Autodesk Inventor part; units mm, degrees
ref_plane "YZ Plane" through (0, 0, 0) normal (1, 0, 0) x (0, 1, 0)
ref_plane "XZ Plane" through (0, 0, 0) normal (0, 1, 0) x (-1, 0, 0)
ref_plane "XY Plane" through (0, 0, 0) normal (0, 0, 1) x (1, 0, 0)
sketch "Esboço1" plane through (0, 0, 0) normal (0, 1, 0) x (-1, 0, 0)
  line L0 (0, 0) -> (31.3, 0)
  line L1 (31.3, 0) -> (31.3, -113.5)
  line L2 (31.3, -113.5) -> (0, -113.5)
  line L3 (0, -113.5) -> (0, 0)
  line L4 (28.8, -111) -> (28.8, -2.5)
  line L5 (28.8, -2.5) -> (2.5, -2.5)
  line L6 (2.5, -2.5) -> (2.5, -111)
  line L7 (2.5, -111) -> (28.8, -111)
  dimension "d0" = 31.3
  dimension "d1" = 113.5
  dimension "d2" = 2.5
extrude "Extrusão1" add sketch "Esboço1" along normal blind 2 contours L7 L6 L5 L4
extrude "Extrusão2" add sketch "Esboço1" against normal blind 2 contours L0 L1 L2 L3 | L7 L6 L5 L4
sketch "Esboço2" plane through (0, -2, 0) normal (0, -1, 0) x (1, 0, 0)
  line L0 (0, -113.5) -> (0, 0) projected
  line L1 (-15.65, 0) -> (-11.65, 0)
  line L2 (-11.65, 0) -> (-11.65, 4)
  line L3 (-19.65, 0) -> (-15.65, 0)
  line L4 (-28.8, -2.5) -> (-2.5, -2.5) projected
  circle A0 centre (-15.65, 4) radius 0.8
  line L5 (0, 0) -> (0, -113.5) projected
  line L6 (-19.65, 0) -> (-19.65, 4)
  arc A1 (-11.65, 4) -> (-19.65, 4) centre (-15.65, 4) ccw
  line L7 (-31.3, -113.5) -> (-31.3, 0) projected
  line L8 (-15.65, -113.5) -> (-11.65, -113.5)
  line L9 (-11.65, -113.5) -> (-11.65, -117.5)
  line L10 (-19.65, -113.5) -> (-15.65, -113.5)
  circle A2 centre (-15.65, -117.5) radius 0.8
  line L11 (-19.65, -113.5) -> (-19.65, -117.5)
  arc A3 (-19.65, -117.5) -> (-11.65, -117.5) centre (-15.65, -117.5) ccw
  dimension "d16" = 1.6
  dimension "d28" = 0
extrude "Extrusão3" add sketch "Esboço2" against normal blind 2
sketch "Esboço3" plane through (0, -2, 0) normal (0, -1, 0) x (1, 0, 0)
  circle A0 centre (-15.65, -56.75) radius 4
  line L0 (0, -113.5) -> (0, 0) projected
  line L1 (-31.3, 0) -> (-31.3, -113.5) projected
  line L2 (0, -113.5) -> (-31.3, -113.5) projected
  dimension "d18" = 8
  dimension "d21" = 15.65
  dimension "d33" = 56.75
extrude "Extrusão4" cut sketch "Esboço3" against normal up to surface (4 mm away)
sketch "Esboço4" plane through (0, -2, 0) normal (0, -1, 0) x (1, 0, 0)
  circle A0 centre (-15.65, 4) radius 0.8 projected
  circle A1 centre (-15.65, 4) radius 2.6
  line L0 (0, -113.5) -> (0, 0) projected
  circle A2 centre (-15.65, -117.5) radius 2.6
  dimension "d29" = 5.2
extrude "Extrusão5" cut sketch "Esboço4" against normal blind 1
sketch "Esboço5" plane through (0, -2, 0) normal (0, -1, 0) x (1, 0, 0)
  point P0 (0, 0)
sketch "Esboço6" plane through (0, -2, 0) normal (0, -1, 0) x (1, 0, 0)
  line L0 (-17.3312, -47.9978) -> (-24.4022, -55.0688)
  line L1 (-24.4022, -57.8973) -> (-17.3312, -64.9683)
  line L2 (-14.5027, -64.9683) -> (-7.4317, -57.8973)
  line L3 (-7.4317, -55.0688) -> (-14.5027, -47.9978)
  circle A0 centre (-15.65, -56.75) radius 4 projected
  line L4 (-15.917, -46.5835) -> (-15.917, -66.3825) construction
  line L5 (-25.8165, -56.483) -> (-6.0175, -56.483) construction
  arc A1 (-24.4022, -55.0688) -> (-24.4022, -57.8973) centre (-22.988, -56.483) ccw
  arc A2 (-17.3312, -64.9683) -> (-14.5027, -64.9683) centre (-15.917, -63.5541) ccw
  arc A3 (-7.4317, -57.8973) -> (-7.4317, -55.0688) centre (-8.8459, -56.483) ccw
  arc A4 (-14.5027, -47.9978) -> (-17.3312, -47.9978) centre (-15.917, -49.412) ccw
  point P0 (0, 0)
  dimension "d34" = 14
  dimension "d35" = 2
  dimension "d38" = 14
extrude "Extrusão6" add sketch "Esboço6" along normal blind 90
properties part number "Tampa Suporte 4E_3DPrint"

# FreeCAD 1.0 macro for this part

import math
import FreeCAD as App
import Part
import Sketcher
from FreeCAD import Vector
Q = App.Units.Quantity

doc = App.newDocument("Part")
params = doc.addObject("Spreadsheet::Sheet", "Params")
for row, (alias, value) in enumerate([
    ("sketch1_width", "26.3 mm"),
    ("sketch1_height", "108.5 mm"),
    ("pad1_length", "2 mm"),
    ("sketch2_width", "31.3 mm"),
    ("sketch2_height", "113.5 mm"),
    ("pad2_length", "2 mm"),
    ("sketch3_diameter", "1.6 mm"),
    ("sketch3_radius", "4 mm"),
    ("sketch3_height", "4 mm"),
    ("pad3_length", "2 mm"),
    ("sketch4_diameter", "8 mm"),
    ("pocket1_length", "4 mm"),
    ("sketch5_diameter", "5.2 mm"),
    ("sketch5_diameter2", "1.6 mm"),
    ("pocket2_length", "1 mm"),
    ("sketch6_radius", "2 mm"),
    ("sketch6_diameter", "8 mm"),
    ("sketch6_length", "10 mm"),
    ("pad4_length", "90 mm"),
], start=1):
    params.set(f"A{row}", alias)
    params.set(f"B{row}", "=" + value)
    params.setAlias(f"B{row}", alias)

body = doc.addObject("PartDesign::Body", "Body")

# Sketch on XZ plane
sketch1 = body.newObject("Sketcher::SketchObject", "Sketch")
sketch1.AttachmentSupport = (doc.getObject("XZ_Plane"), [""])
sketch1.MapMode = "FlatFace"
sketch1.addGeometry(Part.LineSegment(Vector(-2, -111, 0), Vector(-29, -111, 0)), False)
sketch1.addGeometry(Part.LineSegment(Vector(-29, -111, 0), Vector(-29, -2, 0)), False)
sketch1.addGeometry(Part.LineSegment(Vector(-29, -2, 0), Vector(-2, -2, 0)), False)
sketch1.addGeometry(Part.LineSegment(Vector(-2, -2, 0), Vector(-2, -111, 0)), False)
sketch1.addConstraint(Sketcher.Constraint("Coincident", 0, 2, 1, 1))
sketch1.addConstraint(Sketcher.Constraint("Coincident", 1, 2, 2, 1))
sketch1.addConstraint(Sketcher.Constraint("Coincident", 2, 2, 3, 1))
sketch1.addConstraint(Sketcher.Constraint("Coincident", 3, 2, 0, 1))
sketch1.addConstraint(Sketcher.Constraint("Horizontal", 0))
sketch1.addConstraint(Sketcher.Constraint("Vertical", 1))
sketch1.addConstraint(Sketcher.Constraint("Horizontal", 2))
sketch1.addConstraint(Sketcher.Constraint("Vertical", 3))
sketch1.addConstraint(Sketcher.Constraint("DistanceY", 1, 2, -1, 1, Q("2.5 mm")))
sketch1.addConstraint(Sketcher.Constraint("DistanceX", 2, 2, -1, 1, Q("2.5 mm")))
sketch1.addConstraint(Sketcher.Constraint("DistanceX", 0, 2, 0, 1, Q("26.3 mm")))
sketch1.addConstraint(Sketcher.Constraint("DistanceY", 1, 1, 1, 2, Q("108.5 mm")))
sketch1.setExpression("Constraints[10]", "Params.sketch1_width")
sketch1.setExpression("Constraints[11]", "Params.sketch1_height")
pad1 = body.newObject("PartDesign::Pad", "Pad")
pad1.Profile = sketch1
pad1.setExpression("Length", "Params.pad1_length")
pad1.Reversed = True

# Sketch on XZ plane
sketch2 = body.newObject("Sketcher::SketchObject", "Sketch001")
sketch2.AttachmentSupport = (doc.getObject("XZ_Plane"), [""])
sketch2.MapMode = "FlatFace"
sketch2.addGeometry(Part.LineSegment(Vector(-31, 0, 0), Vector(0, 0, 0)), False)
sketch2.addGeometry(Part.LineSegment(Vector(0, 0, 0), Vector(0, -114, 0)), False)
sketch2.addGeometry(Part.LineSegment(Vector(0, -114, 0), Vector(-31, -114, 0)), False)
sketch2.addGeometry(Part.LineSegment(Vector(-31, -114, 0), Vector(-31, 0, 0)), False)
sketch2.addConstraint(Sketcher.Constraint("Coincident", 0, 2, 1, 1))
sketch2.addConstraint(Sketcher.Constraint("Coincident", 1, 2, 2, 1))
sketch2.addConstraint(Sketcher.Constraint("Coincident", 2, 2, 3, 1))
sketch2.addConstraint(Sketcher.Constraint("Coincident", 3, 2, 0, 1))
sketch2.addConstraint(Sketcher.Constraint("Horizontal", 0))
sketch2.addConstraint(Sketcher.Constraint("Vertical", 1))
sketch2.addConstraint(Sketcher.Constraint("Horizontal", 2))
sketch2.addConstraint(Sketcher.Constraint("Vertical", 3))
sketch2.addConstraint(Sketcher.Constraint("Coincident", 0, 2, -1, 1))
sketch2.addConstraint(Sketcher.Constraint("DistanceX", 0, 1, 0, 2, Q("31.3 mm")))
sketch2.addConstraint(Sketcher.Constraint("DistanceY", 1, 2, 1, 1, Q("113.5 mm")))
sketch2.setExpression("Constraints[9]", "Params.sketch2_width")
sketch2.setExpression("Constraints[10]", "Params.sketch2_height")
pad2 = body.newObject("PartDesign::Pad", "Pad001")
pad2.Profile = sketch2
pad2.setExpression("Length", "Params.pad2_length")

# Sketch on XZ plane
sketch3 = body.newObject("Sketcher::SketchObject", "Sketch002")
sketch3.AttachmentSupport = (doc.getObject("XZ_Plane"), [""])
sketch3.MapMode = "FlatFace"
sketch3.AttachmentOffset = App.Placement(Vector(0, 0, 2), App.Rotation())
sketch3.addGeometry(Part.LineSegment(Vector(-19.6, 0, 0), Vector(-11.7, 0, 0)), False)
sketch3.addGeometry(Part.LineSegment(Vector(-11.7, 0, 0), Vector(-11.7, 4, 0)), False)
sketch3.addGeometry(Part.ArcOfCircle(Part.Circle(Vector(-15.7, 4, 0), Vector(0, 0, 1), 4), math.radians(0), math.radians(180)), False)
sketch3.addGeometry(Part.LineSegment(Vector(-19.6, 4, 0), Vector(-19.6, 0, 0)), False)
sketch3.addGeometry(Part.Circle(Vector(-15.7, 4, 0), Vector(0, 0, 1), 0.8), False)
sketch3.addGeometry(Part.LineSegment(Vector(-11.7, -113.5, 0), Vector(-19.6, -113.5, 0)), False)
sketch3.addGeometry(Part.LineSegment(Vector(-19.6, -113.5, 0), Vector(-19.6, -117.5, 0)), False)
sketch3.addGeometry(Part.ArcOfCircle(Part.Circle(Vector(-15.7, -117.5, 0), Vector(0, 0, 1), 4), math.radians(180), math.radians(360)), False)
sketch3.addGeometry(Part.LineSegment(Vector(-11.7, -117.5, 0), Vector(-11.7, -113.5, 0)), False)
sketch3.addGeometry(Part.Circle(Vector(-15.7, -117.5, 0), Vector(0, 0, 1), 0.8), False)
sketch3.addConstraint(Sketcher.Constraint("Coincident", 0, 2, 1, 1))
sketch3.addConstraint(Sketcher.Constraint("Tangent", 1, 2, 2, 1))
sketch3.addConstraint(Sketcher.Constraint("Tangent", 2, 2, 3, 1))
sketch3.addConstraint(Sketcher.Constraint("Coincident", 3, 2, 0, 1))
sketch3.addConstraint(Sketcher.Constraint("Coincident", 5, 2, 6, 1))
sketch3.addConstraint(Sketcher.Constraint("Tangent", 6, 2, 7, 1))
sketch3.addConstraint(Sketcher.Constraint("Tangent", 7, 2, 8, 1))
sketch3.addConstraint(Sketcher.Constraint("Coincident", 8, 2, 5, 1))
sketch3.addConstraint(Sketcher.Constraint("Horizontal", 0))
sketch3.addConstraint(Sketcher.Constraint("Vertical", 1))
sketch3.addConstraint(Sketcher.Constraint("Vertical", 3))
sketch3.addConstraint(Sketcher.Constraint("Horizontal", 5))
sketch3.addConstraint(Sketcher.Constraint("Vertical", 6))
sketch3.addConstraint(Sketcher.Constraint("Vertical", 8))
sketch3.addConstraint(Sketcher.Constraint("Coincident", 4, 3, 2, 3))
sketch3.addConstraint(Sketcher.Constraint("Coincident", 9, 3, 7, 3))
sketch3.addConstraint(Sketcher.Constraint("Equal", 2, 7))
sketch3.addConstraint(Sketcher.Constraint("Equal", 4, 9))
sketch3.addConstraint(Sketcher.Constraint("PointOnObject", 0, 2, -1))
sketch3.addConstraint(Sketcher.Constraint("Vertical", 4, 3, 7, 3))
sketch3.addConstraint(Sketcher.Constraint("Equal", 3, 6))
sketch3.addConstraint(Sketcher.Constraint("Diameter", 4, Q("1.6 mm")))
sketch3.addConstraint(Sketcher.Constraint("Radius", 2, Q("4 mm")))
sketch3.addConstraint(Sketcher.Constraint("DistanceY", 1, 1, 1, 2, Q("4 mm")))
sketch3.addConstraint(Sketcher.Constraint("DistanceY", 7, 3, -1, 1, Q("117.5 mm")))
sketch3.addConstraint(Sketcher.Constraint("DistanceX", 2, 3, -1, 1, Q("15.65 mm")))
sketch3.setExpression("Constraints[21]", "Params.sketch3_diameter")
sketch3.setExpression("Constraints[22]", "Params.sketch3_radius")
sketch3.setExpression("Constraints[23]", "Params.sketch3_height")
pad3 = body.newObject("PartDesign::Pad", "Pad002")
pad3.Profile = sketch3
pad3.setExpression("Length", "Params.pad3_length")
pad3.Reversed = True

# Sketch on XZ plane
sketch4 = body.newObject("Sketcher::SketchObject", "Sketch003")
sketch4.AttachmentSupport = (doc.getObject("XZ_Plane"), [""])
sketch4.MapMode = "FlatFace"
sketch4.AttachmentOffset = App.Placement(Vector(0, 0, 2), App.Rotation())
sketch4.addGeometry(Part.Circle(Vector(-15.7, -56.8, 0), Vector(0, 0, 1), 4), False)
sketch4.addConstraint(Sketcher.Constraint("Diameter", 0, Q("8 mm")))
sketch4.addConstraint(Sketcher.Constraint("DistanceX", 0, 3, -1, 1, Q("15.65 mm")))
sketch4.addConstraint(Sketcher.Constraint("DistanceY", 0, 3, -1, 1, Q("56.75 mm")))
sketch4.setExpression("Constraints[0]", "Params.sketch4_diameter")
pocket1 = body.newObject("PartDesign::Pocket", "Pocket")
pocket1.Profile = sketch4
pocket1.setExpression("Length", "Params.pocket1_length")

# Sketch on XZ plane
sketch5 = body.newObject("Sketcher::SketchObject", "Sketch004")
sketch5.AttachmentSupport = (doc.getObject("XZ_Plane"), [""])
sketch5.MapMode = "FlatFace"
sketch5.AttachmentOffset = App.Placement(Vector(0, 0, 2), App.Rotation())
sketch5.addGeometry(Part.Circle(Vector(-15.7, 4, 0), Vector(0, 0, 1), 2.6), False)
sketch5.addGeometry(Part.Circle(Vector(-15.7, 4, 0), Vector(0, 0, 1), 0.8), False)
sketch5.addGeometry(Part.Circle(Vector(-15.7, -117.5, 0), Vector(0, 0, 1), 2.6), False)
sketch5.addConstraint(Sketcher.Constraint("Coincident", 1, 3, 0, 3))
sketch5.addConstraint(Sketcher.Constraint("Equal", 0, 2))
sketch5.addConstraint(Sketcher.Constraint("Vertical", 1, 3, 2, 3))
sketch5.addConstraint(Sketcher.Constraint("Diameter", 0, Q("5.2 mm")))
sketch5.addConstraint(Sketcher.Constraint("Diameter", 1, Q("1.6 mm")))
sketch5.addConstraint(Sketcher.Constraint("DistanceY", -1, 1, 0, 3, Q("4 mm")))
sketch5.addConstraint(Sketcher.Constraint("DistanceY", 2, 3, -1, 1, Q("117.5 mm")))
sketch5.addConstraint(Sketcher.Constraint("DistanceX", 0, 3, -1, 1, Q("15.65 mm")))
sketch5.setExpression("Constraints[3]", "Params.sketch5_diameter")
sketch5.setExpression("Constraints[4]", "Params.sketch5_diameter2")
pocket2 = body.newObject("PartDesign::Pocket", "Pocket001")
pocket2.Profile = sketch5
pocket2.setExpression("Length", "Params.pocket2_length")

# Sketch on XZ plane
sketch6 = body.newObject("Sketcher::SketchObject", "Sketch005")
sketch6.AttachmentSupport = (doc.getObject("XZ_Plane"), [""])
sketch6.MapMode = "FlatFace"
sketch6.AttachmentOffset = App.Placement(Vector(0, 0, 2), App.Rotation())
sketch6.addGeometry(Part.ArcOfCircle(Part.Circle(Vector(-15.9, -49.4, 0), Vector(0, 0, 1), 2), math.radians(45), math.radians(135)), False)
sketch6.addGeometry(Part.LineSegment(Vector(-17.3, -48, 0), Vector(-24.4, -55.1, 0)), False)
sketch6.addGeometry(Part.ArcOfCircle(Part.Circle(Vector(-23, -56.5, 0), Vector(0, 0, 1), 2), math.radians(135), math.radians(225)), False)
sketch6.addGeometry(Part.LineSegment(Vector(-24.4, -57.9, 0), Vector(-17.3, -65, 0)), False)
sketch6.addGeometry(Part.ArcOfCircle(Part.Circle(Vector(-15.9, -63.6, 0), Vector(0, 0, 1), 2), math.radians(-135), math.radians(-45)), False)
sketch6.addGeometry(Part.LineSegment(Vector(-14.5, -65, 0), Vector(-7.4, -57.9, 0)), False)
sketch6.addGeometry(Part.ArcOfCircle(Part.Circle(Vector(-8.8, -56.5, 0), Vector(0, 0, 1), 2), math.radians(-45), math.radians(45)), False)
sketch6.addGeometry(Part.LineSegment(Vector(-7.4, -55.1, 0), Vector(-14.5, -48, 0)), False)
sketch6.addGeometry(Part.Circle(Vector(-15.7, -56.8, 0), Vector(0, 0, 1), 4), False)
sketch6.addConstraint(Sketcher.Constraint("Tangent", 0, 2, 1, 1))
sketch6.addConstraint(Sketcher.Constraint("Tangent", 1, 2, 2, 1))
sketch6.addConstraint(Sketcher.Constraint("Tangent", 2, 2, 3, 1))
sketch6.addConstraint(Sketcher.Constraint("Tangent", 3, 2, 4, 1))
sketch6.addConstraint(Sketcher.Constraint("Tangent", 4, 2, 5, 1))
sketch6.addConstraint(Sketcher.Constraint("Tangent", 5, 2, 6, 1))
sketch6.addConstraint(Sketcher.Constraint("Tangent", 6, 2, 7, 1))
sketch6.addConstraint(Sketcher.Constraint("Tangent", 7, 2, 0, 1))
sketch6.addConstraint(Sketcher.Constraint("Equal", 0, 2))
sketch6.addConstraint(Sketcher.Constraint("Equal", 2, 4))
sketch6.addConstraint(Sketcher.Constraint("Equal", 4, 6))
sketch6.addConstraint(Sketcher.Constraint("Perpendicular", 1, 3))
sketch6.addConstraint(Sketcher.Constraint("Perpendicular", 3, 5))
sketch6.addConstraint(Sketcher.Constraint("Perpendicular", 5, 7))
sketch6.addConstraint(Sketcher.Constraint("Horizontal", 2, 3, 6, 3))
sketch6.addConstraint(Sketcher.Constraint("Horizontal", 3, 2, 4, 2))
sketch6.addConstraint(Sketcher.Constraint("Radius", 0, Q("2 mm")))
sketch6.addConstraint(Sketcher.Constraint("Diameter", 8, Q("8 mm")))
sketch6.addConstraint(Sketcher.Constraint("Distance", 1, Q("10 mm")))
sketch6.addConstraint(Sketcher.Constraint("DistanceX", 8, 3, -1, 1, Q("15.65 mm")))
sketch6.addConstraint(Sketcher.Constraint("DistanceY", 8, 3, -1, 1, Q("56.75 mm")))
sketch6.addConstraint(Sketcher.Constraint("DistanceX", 0, 3, -1, 1, Q("15.917 mm")))
sketch6.addConstraint(Sketcher.Constraint("DistanceY", 0, 3, -1, 1, Q("49.412 mm")))
sketch6.setExpression("Constraints[16]", "Params.sketch6_radius")
sketch6.setExpression("Constraints[17]", "Params.sketch6_diameter")
sketch6.setExpression("Constraints[18]", "Params.sketch6_length")
pad4 = body.newObject("PartDesign::Pad", "Pad003")
pad4.Profile = sketch6
pad4.setExpression("Length", "Params.pad4_length")

doc.recompute()
